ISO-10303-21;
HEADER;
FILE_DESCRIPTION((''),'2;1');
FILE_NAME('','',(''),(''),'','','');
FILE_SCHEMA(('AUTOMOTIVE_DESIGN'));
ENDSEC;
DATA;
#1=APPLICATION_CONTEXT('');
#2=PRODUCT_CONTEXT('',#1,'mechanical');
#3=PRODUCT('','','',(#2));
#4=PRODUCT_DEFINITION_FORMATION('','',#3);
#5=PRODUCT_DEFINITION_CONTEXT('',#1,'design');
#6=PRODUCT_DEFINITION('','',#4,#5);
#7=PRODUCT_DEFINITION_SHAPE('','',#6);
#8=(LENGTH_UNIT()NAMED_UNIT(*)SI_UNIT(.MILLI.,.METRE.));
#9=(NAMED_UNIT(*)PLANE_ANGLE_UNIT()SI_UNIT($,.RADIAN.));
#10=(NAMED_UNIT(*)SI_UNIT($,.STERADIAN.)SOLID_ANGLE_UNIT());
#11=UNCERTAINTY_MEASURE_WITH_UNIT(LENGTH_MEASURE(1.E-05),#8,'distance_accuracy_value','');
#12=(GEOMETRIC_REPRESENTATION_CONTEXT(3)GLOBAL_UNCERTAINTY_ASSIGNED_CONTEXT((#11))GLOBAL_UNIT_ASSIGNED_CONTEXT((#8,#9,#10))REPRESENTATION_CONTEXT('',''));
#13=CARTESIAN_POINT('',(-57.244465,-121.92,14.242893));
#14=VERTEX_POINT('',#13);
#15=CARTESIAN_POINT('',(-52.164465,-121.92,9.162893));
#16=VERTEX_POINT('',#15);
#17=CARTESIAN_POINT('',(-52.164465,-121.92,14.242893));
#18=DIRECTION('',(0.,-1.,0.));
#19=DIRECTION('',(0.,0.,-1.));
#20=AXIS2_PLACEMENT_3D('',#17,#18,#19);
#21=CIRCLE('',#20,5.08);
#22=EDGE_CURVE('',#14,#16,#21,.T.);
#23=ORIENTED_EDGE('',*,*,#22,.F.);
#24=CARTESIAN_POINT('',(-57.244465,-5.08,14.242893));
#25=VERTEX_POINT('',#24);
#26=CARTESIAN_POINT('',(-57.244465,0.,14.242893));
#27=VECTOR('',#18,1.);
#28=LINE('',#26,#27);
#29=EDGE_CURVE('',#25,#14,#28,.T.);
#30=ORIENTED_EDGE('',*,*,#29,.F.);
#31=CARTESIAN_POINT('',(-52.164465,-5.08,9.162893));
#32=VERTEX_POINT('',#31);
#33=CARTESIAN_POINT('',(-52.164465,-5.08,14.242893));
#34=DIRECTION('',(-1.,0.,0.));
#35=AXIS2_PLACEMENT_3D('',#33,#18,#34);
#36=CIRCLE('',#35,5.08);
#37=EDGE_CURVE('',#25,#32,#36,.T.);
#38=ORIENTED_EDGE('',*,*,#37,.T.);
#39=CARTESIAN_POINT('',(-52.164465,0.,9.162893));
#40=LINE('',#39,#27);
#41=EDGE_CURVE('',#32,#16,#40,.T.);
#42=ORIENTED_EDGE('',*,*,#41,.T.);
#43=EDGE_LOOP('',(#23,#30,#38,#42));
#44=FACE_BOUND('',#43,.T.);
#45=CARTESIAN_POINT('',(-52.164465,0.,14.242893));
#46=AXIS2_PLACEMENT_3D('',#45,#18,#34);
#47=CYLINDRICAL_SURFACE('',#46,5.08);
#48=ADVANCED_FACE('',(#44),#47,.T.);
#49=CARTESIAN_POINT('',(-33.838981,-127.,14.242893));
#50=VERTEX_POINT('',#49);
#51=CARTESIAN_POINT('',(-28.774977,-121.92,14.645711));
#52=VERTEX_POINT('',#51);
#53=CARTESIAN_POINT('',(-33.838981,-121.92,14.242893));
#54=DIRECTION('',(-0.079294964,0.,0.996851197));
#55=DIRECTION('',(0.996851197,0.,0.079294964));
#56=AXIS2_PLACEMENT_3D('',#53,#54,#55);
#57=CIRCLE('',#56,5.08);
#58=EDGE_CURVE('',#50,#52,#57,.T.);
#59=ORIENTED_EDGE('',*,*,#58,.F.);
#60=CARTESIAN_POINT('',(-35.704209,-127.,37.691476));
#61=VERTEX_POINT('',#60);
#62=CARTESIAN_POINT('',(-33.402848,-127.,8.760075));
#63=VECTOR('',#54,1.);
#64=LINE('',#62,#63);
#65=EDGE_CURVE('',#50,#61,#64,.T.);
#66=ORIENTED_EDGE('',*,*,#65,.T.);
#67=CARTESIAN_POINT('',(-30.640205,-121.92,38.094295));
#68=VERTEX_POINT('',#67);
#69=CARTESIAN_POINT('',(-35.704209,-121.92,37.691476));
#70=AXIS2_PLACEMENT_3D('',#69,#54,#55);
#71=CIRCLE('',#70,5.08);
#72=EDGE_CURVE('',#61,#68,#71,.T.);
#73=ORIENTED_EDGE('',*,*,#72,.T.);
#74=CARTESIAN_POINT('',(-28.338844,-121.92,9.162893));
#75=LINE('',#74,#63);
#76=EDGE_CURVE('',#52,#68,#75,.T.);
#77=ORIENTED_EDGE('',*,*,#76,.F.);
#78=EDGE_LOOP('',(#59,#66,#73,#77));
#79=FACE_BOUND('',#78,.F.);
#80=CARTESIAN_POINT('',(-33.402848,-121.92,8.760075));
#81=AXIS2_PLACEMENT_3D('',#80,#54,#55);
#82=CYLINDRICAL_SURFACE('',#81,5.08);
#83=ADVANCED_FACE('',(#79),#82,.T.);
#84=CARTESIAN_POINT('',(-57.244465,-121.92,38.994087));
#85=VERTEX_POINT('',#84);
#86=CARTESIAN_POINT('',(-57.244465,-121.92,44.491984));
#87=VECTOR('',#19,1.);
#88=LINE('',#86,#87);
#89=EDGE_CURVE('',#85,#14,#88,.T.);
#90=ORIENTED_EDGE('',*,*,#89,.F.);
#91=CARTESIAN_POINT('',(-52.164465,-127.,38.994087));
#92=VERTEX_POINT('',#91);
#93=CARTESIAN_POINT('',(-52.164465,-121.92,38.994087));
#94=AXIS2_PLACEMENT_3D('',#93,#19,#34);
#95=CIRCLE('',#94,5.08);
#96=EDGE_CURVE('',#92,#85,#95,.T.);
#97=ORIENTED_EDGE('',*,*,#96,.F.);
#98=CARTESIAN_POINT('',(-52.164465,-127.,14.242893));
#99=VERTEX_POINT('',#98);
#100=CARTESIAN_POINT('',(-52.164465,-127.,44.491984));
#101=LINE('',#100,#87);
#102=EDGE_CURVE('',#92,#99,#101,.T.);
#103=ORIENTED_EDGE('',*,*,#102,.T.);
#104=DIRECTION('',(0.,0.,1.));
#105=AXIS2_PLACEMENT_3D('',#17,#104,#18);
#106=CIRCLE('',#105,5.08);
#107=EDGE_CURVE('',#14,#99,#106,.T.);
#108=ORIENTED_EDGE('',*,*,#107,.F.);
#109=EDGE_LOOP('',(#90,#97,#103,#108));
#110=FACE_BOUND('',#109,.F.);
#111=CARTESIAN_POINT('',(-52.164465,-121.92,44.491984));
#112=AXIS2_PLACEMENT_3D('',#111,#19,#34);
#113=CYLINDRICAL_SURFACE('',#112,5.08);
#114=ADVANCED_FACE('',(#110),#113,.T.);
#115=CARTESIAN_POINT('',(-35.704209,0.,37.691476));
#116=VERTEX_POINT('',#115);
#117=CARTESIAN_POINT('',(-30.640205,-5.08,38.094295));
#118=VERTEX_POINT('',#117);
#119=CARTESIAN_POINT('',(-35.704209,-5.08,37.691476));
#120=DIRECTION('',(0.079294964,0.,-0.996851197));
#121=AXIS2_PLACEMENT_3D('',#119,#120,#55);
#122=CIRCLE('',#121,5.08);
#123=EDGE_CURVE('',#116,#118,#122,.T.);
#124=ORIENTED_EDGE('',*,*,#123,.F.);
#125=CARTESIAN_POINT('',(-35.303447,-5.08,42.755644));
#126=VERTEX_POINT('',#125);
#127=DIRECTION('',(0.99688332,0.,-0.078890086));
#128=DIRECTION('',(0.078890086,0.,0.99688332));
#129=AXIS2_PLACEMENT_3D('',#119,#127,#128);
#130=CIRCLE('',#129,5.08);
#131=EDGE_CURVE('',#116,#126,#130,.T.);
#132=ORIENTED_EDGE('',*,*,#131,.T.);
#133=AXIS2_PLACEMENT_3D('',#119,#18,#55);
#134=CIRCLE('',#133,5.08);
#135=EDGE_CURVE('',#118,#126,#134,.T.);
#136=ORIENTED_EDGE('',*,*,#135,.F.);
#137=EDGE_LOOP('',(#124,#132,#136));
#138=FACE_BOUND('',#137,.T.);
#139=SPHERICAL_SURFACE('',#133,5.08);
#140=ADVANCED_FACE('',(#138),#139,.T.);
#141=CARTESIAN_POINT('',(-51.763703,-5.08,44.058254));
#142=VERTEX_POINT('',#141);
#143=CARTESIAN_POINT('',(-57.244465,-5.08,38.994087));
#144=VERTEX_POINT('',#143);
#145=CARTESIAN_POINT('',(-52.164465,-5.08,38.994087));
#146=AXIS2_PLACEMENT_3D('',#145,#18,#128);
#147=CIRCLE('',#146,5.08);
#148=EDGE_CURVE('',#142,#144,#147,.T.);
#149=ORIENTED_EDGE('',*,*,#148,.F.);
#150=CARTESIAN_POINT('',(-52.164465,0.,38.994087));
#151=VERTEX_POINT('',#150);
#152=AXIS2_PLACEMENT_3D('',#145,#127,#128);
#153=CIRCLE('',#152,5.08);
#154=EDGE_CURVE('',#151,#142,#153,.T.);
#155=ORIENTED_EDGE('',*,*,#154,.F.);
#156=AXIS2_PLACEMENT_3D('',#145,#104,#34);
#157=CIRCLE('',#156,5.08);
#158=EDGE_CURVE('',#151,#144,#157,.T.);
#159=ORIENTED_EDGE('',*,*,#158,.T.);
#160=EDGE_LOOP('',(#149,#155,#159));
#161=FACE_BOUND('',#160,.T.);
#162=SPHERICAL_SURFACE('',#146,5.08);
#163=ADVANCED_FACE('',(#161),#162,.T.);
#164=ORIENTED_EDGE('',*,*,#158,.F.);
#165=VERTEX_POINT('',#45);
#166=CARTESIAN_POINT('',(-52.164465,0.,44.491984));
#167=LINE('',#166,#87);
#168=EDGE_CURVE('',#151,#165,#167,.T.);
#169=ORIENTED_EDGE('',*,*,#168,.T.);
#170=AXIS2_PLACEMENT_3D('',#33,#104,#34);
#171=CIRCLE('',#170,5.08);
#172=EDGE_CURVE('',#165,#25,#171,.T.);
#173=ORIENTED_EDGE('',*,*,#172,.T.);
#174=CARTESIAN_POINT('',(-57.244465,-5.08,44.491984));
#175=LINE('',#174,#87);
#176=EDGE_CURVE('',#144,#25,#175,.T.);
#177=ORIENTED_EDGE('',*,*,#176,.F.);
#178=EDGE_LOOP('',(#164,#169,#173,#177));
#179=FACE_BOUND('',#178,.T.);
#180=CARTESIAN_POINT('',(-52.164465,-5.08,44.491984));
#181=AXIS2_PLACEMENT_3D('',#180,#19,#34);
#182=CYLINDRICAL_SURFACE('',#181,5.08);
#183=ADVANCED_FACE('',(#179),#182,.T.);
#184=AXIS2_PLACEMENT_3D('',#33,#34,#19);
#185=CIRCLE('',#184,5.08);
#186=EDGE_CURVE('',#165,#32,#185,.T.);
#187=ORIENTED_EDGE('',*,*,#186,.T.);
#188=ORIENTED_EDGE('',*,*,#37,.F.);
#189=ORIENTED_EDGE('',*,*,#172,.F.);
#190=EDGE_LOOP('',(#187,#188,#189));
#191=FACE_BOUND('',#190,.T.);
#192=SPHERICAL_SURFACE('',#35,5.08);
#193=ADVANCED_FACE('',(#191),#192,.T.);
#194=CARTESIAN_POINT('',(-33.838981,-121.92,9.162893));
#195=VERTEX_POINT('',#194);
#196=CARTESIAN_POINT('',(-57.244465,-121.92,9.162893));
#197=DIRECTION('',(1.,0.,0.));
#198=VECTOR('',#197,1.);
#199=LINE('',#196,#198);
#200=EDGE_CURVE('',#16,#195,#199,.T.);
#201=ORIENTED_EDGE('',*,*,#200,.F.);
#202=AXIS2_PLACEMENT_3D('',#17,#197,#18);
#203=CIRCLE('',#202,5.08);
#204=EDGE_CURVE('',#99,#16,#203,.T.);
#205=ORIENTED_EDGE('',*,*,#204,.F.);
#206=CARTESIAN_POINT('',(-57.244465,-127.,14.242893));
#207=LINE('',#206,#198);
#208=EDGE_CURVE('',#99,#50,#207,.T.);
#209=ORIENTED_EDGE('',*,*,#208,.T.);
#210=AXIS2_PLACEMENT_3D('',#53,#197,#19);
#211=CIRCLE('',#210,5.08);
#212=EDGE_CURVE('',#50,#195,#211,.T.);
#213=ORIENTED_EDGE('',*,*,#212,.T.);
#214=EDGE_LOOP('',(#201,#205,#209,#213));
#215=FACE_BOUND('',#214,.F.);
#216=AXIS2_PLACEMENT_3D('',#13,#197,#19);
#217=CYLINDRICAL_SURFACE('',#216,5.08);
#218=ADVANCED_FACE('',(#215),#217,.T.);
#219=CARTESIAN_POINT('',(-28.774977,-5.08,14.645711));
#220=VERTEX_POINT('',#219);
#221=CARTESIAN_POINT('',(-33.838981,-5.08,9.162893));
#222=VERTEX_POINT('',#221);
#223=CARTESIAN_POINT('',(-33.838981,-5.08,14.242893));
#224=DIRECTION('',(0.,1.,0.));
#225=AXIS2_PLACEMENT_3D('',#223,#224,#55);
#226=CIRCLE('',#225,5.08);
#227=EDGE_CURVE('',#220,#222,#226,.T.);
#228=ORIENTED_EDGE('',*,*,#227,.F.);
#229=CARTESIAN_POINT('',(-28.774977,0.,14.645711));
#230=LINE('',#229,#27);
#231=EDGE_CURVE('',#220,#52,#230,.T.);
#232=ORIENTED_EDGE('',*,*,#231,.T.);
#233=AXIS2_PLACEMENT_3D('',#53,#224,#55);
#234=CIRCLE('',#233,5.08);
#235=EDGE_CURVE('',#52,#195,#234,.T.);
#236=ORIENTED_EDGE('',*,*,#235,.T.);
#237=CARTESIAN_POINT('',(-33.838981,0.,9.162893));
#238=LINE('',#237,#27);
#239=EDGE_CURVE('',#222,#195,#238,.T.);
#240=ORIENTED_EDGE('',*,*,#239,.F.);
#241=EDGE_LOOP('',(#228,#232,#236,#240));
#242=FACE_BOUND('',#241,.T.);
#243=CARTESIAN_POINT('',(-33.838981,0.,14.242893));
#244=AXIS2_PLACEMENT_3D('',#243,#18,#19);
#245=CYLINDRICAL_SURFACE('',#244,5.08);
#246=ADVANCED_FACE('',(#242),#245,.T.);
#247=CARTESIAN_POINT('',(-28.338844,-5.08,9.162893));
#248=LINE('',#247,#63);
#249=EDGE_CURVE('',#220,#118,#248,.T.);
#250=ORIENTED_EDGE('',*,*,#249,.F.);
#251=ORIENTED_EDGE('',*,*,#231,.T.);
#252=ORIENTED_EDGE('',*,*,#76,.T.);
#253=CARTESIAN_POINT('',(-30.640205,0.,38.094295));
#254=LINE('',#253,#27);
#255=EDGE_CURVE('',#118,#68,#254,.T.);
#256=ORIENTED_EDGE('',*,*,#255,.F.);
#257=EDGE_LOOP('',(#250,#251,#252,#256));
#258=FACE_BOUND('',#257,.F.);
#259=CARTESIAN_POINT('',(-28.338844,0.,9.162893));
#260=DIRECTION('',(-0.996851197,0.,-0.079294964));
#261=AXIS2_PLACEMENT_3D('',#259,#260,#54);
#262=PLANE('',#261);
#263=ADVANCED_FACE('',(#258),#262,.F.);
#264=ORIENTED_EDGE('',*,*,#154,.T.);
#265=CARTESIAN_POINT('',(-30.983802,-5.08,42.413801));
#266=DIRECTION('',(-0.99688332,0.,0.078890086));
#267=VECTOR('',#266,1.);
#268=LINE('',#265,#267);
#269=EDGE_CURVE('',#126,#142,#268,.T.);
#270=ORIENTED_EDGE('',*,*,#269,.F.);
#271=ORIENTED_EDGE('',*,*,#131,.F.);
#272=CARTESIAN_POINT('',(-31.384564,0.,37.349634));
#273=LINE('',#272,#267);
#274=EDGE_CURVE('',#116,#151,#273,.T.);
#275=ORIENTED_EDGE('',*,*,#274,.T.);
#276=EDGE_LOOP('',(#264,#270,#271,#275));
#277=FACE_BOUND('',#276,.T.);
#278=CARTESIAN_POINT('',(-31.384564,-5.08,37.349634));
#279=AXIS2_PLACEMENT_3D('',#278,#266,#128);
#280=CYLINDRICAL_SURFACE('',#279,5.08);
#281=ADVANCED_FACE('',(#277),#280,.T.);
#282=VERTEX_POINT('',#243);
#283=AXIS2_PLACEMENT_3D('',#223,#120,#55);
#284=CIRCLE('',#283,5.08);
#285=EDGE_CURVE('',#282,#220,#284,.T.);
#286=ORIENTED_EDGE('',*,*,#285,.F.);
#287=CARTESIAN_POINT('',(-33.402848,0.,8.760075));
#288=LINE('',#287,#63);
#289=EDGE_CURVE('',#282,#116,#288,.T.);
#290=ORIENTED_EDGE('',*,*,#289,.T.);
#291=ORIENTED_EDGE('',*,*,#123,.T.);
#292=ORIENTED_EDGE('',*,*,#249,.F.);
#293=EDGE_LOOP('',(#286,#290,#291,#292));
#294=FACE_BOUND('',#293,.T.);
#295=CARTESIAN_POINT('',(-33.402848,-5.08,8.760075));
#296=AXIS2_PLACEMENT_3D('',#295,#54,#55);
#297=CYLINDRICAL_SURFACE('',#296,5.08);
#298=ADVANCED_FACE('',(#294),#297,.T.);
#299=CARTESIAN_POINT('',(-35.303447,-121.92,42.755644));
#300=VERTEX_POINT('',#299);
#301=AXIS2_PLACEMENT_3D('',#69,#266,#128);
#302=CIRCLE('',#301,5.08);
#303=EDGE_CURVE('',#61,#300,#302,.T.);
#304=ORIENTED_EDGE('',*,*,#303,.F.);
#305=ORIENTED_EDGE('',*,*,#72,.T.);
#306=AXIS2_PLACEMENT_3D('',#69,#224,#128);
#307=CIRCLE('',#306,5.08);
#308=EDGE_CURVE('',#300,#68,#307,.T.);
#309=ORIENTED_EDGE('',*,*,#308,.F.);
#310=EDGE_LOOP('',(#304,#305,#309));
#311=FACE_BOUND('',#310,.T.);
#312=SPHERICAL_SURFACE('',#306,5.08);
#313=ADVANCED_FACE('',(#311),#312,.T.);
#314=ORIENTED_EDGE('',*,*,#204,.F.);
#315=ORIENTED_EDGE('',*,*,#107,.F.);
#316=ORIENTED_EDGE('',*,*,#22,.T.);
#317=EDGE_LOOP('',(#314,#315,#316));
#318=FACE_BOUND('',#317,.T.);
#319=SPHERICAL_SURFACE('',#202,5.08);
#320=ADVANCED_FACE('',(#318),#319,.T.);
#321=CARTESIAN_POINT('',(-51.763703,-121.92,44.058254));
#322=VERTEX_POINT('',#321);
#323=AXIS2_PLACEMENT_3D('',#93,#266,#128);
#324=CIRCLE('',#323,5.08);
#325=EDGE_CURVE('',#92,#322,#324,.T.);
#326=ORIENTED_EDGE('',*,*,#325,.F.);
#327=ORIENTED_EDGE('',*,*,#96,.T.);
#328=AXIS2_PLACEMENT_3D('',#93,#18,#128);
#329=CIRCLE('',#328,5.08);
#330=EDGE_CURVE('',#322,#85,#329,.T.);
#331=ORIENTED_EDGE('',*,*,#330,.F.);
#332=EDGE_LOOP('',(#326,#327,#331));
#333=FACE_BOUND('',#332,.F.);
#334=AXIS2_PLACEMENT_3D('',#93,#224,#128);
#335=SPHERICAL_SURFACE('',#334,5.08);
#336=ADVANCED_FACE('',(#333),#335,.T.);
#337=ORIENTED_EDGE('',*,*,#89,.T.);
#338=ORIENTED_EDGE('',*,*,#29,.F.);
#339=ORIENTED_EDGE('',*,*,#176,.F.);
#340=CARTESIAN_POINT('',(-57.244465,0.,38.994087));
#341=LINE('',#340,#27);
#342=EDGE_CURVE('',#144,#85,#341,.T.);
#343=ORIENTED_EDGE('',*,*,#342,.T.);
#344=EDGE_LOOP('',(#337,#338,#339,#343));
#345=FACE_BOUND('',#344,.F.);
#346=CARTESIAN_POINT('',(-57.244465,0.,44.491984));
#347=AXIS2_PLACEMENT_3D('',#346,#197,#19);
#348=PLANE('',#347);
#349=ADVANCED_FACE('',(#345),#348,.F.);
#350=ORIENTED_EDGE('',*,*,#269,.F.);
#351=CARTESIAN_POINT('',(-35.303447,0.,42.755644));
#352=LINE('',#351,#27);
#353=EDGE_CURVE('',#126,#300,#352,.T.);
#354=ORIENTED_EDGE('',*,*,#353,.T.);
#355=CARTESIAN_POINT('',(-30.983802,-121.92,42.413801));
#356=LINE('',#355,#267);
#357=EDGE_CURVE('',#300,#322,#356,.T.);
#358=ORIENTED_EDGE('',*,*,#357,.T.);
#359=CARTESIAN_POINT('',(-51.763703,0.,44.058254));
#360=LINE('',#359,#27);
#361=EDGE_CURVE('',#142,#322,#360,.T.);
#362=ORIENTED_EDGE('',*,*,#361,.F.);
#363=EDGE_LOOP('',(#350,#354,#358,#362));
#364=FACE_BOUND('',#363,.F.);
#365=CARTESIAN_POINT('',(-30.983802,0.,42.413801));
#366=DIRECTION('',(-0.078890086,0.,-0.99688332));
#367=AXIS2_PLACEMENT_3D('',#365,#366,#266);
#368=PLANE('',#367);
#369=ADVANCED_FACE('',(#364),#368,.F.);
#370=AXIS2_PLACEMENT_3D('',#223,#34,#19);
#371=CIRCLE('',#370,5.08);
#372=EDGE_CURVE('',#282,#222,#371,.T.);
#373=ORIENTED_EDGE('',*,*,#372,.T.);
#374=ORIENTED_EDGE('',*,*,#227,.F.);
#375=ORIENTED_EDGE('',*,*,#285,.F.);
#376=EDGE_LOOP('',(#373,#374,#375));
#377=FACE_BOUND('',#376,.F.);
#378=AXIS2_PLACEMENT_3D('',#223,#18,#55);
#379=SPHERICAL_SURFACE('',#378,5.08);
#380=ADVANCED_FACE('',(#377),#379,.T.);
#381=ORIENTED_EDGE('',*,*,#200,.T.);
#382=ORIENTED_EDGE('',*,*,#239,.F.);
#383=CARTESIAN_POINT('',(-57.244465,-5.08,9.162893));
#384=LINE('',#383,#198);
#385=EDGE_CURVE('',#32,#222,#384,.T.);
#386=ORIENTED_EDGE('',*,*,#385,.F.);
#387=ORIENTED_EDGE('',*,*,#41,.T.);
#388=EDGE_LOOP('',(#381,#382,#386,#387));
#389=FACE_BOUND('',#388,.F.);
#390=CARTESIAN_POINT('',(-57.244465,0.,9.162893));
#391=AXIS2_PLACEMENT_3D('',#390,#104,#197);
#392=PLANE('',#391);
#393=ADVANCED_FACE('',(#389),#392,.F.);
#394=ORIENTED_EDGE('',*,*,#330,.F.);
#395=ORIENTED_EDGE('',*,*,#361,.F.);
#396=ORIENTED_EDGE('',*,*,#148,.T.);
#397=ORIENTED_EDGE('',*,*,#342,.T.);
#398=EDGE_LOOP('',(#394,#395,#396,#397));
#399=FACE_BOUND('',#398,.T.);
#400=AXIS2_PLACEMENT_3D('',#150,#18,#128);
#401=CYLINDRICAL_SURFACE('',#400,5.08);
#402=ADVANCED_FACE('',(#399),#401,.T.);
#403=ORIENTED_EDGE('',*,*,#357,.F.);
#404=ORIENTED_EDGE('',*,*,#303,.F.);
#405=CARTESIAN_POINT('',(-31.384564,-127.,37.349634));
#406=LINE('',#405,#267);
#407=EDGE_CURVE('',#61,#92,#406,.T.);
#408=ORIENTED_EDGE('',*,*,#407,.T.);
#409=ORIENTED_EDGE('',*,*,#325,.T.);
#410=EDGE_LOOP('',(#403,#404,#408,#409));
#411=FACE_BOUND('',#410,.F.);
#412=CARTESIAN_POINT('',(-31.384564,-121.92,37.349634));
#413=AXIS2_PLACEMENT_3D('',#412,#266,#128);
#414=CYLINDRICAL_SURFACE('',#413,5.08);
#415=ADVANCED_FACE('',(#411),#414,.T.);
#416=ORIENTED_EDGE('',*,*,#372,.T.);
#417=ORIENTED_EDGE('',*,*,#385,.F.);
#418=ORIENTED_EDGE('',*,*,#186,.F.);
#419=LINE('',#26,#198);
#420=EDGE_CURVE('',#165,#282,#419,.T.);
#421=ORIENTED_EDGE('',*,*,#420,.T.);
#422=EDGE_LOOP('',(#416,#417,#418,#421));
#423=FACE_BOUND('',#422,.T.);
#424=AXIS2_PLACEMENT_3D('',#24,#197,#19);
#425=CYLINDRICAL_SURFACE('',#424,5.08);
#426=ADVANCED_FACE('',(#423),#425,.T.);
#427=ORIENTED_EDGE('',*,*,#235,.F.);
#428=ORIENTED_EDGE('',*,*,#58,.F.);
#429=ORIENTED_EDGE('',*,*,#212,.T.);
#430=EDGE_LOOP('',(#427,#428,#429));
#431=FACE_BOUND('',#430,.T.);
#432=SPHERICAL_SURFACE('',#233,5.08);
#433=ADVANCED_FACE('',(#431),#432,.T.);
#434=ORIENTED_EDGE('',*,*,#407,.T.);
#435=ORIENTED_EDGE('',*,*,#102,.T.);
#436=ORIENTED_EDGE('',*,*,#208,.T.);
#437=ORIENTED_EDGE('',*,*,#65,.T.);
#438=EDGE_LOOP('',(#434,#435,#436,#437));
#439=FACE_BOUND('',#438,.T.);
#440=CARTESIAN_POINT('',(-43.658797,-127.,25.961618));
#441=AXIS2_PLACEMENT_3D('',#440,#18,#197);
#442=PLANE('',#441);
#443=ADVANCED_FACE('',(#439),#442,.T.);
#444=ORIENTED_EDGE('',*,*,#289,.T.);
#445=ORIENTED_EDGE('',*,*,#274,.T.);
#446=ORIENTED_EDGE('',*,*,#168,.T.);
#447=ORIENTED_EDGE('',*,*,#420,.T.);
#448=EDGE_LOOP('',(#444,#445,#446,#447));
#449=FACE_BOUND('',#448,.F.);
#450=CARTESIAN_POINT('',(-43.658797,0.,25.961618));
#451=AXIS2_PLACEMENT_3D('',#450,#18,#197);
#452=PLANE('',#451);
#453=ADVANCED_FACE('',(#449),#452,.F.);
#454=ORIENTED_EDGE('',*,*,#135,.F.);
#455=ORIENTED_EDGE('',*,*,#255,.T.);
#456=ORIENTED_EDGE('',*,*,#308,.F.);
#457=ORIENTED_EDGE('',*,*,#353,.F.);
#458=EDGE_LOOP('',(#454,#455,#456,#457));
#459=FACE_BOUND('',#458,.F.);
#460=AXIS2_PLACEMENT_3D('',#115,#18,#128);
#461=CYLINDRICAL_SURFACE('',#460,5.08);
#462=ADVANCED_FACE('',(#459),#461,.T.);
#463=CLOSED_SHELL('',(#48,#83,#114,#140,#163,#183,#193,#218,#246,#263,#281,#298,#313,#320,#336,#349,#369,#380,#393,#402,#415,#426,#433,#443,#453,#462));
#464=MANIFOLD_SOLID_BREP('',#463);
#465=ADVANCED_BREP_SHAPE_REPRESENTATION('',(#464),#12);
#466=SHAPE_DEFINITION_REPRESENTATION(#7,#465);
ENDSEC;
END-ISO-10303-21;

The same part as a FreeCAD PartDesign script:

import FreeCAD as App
import Part
import Sketcher
from FreeCAD import Vector
Q = App.Units.Quantity


def add_polygon(sketch, points):
    """Adds a closed chain of lines whose ends are joined by coincident constraints."""
    first, n = sketch.GeometryCount, len(points)
    for a, b in zip(points, points[1:] + points[:1]):
        sketch.addGeometry(Part.LineSegment(App.Vector(*a, 0), App.Vector(*b, 0)), False)
    for i in range(n):
        sketch.addConstraint(Sketcher.Constraint("Coincident", first + i, 2, first + (i + 1) % n, 1))

doc = App.newDocument("Part")
body = doc.addObject("PartDesign::Body", "Body")

sketch1 = doc.addObject("Sketcher::SketchObject", "Sketch")
body.addObject(sketch1)
sketch1.AttachmentSupport = (doc.XZ_Plane, [""])
sketch1.MapMode = "FlatFace"
add_polygon(sketch1, [(-31, 42), (-57, 44), (-57, 9), (-28, 9)])
sketch1.addConstraint([
    Sketcher.Constraint("Vertical", 1),
    Sketcher.Constraint("Horizontal", 2),
    Sketcher.Constraint("DistanceX", 2, 1, 2, 2, Q("28.905621 mm")),
    Sketcher.Constraint("DistanceY", 1, 2, 1, 1, Q("35.329091 mm")),
    Sketcher.Constraint("DistanceY", -1, 1, 3, 2, Q("42.413801 mm")),
    Sketcher.Constraint("Distance", 3, Q("33.355939 mm")),
    Sketcher.Constraint("Distance", 0, Q("26.342765 mm")),
    Sketcher.Constraint("DistanceX", 0, 2, -1, 1, Q("57.244465 mm")),
])
pad1 = doc.addObject("PartDesign::Pad", "Pad")
body.addObject(pad1)
pad1.Profile = sketch1
pad1.Length = Q("5 in")
doc.recompute()

fillet = doc.addObject("PartDesign::Fillet", "Fillet")
body.addObject(fillet)
fillet.Base = (pad1, ["Edge1"])
fillet.UseAllEdges = True
fillet.Radius = Q("0.2 in")

doc.recompute()
